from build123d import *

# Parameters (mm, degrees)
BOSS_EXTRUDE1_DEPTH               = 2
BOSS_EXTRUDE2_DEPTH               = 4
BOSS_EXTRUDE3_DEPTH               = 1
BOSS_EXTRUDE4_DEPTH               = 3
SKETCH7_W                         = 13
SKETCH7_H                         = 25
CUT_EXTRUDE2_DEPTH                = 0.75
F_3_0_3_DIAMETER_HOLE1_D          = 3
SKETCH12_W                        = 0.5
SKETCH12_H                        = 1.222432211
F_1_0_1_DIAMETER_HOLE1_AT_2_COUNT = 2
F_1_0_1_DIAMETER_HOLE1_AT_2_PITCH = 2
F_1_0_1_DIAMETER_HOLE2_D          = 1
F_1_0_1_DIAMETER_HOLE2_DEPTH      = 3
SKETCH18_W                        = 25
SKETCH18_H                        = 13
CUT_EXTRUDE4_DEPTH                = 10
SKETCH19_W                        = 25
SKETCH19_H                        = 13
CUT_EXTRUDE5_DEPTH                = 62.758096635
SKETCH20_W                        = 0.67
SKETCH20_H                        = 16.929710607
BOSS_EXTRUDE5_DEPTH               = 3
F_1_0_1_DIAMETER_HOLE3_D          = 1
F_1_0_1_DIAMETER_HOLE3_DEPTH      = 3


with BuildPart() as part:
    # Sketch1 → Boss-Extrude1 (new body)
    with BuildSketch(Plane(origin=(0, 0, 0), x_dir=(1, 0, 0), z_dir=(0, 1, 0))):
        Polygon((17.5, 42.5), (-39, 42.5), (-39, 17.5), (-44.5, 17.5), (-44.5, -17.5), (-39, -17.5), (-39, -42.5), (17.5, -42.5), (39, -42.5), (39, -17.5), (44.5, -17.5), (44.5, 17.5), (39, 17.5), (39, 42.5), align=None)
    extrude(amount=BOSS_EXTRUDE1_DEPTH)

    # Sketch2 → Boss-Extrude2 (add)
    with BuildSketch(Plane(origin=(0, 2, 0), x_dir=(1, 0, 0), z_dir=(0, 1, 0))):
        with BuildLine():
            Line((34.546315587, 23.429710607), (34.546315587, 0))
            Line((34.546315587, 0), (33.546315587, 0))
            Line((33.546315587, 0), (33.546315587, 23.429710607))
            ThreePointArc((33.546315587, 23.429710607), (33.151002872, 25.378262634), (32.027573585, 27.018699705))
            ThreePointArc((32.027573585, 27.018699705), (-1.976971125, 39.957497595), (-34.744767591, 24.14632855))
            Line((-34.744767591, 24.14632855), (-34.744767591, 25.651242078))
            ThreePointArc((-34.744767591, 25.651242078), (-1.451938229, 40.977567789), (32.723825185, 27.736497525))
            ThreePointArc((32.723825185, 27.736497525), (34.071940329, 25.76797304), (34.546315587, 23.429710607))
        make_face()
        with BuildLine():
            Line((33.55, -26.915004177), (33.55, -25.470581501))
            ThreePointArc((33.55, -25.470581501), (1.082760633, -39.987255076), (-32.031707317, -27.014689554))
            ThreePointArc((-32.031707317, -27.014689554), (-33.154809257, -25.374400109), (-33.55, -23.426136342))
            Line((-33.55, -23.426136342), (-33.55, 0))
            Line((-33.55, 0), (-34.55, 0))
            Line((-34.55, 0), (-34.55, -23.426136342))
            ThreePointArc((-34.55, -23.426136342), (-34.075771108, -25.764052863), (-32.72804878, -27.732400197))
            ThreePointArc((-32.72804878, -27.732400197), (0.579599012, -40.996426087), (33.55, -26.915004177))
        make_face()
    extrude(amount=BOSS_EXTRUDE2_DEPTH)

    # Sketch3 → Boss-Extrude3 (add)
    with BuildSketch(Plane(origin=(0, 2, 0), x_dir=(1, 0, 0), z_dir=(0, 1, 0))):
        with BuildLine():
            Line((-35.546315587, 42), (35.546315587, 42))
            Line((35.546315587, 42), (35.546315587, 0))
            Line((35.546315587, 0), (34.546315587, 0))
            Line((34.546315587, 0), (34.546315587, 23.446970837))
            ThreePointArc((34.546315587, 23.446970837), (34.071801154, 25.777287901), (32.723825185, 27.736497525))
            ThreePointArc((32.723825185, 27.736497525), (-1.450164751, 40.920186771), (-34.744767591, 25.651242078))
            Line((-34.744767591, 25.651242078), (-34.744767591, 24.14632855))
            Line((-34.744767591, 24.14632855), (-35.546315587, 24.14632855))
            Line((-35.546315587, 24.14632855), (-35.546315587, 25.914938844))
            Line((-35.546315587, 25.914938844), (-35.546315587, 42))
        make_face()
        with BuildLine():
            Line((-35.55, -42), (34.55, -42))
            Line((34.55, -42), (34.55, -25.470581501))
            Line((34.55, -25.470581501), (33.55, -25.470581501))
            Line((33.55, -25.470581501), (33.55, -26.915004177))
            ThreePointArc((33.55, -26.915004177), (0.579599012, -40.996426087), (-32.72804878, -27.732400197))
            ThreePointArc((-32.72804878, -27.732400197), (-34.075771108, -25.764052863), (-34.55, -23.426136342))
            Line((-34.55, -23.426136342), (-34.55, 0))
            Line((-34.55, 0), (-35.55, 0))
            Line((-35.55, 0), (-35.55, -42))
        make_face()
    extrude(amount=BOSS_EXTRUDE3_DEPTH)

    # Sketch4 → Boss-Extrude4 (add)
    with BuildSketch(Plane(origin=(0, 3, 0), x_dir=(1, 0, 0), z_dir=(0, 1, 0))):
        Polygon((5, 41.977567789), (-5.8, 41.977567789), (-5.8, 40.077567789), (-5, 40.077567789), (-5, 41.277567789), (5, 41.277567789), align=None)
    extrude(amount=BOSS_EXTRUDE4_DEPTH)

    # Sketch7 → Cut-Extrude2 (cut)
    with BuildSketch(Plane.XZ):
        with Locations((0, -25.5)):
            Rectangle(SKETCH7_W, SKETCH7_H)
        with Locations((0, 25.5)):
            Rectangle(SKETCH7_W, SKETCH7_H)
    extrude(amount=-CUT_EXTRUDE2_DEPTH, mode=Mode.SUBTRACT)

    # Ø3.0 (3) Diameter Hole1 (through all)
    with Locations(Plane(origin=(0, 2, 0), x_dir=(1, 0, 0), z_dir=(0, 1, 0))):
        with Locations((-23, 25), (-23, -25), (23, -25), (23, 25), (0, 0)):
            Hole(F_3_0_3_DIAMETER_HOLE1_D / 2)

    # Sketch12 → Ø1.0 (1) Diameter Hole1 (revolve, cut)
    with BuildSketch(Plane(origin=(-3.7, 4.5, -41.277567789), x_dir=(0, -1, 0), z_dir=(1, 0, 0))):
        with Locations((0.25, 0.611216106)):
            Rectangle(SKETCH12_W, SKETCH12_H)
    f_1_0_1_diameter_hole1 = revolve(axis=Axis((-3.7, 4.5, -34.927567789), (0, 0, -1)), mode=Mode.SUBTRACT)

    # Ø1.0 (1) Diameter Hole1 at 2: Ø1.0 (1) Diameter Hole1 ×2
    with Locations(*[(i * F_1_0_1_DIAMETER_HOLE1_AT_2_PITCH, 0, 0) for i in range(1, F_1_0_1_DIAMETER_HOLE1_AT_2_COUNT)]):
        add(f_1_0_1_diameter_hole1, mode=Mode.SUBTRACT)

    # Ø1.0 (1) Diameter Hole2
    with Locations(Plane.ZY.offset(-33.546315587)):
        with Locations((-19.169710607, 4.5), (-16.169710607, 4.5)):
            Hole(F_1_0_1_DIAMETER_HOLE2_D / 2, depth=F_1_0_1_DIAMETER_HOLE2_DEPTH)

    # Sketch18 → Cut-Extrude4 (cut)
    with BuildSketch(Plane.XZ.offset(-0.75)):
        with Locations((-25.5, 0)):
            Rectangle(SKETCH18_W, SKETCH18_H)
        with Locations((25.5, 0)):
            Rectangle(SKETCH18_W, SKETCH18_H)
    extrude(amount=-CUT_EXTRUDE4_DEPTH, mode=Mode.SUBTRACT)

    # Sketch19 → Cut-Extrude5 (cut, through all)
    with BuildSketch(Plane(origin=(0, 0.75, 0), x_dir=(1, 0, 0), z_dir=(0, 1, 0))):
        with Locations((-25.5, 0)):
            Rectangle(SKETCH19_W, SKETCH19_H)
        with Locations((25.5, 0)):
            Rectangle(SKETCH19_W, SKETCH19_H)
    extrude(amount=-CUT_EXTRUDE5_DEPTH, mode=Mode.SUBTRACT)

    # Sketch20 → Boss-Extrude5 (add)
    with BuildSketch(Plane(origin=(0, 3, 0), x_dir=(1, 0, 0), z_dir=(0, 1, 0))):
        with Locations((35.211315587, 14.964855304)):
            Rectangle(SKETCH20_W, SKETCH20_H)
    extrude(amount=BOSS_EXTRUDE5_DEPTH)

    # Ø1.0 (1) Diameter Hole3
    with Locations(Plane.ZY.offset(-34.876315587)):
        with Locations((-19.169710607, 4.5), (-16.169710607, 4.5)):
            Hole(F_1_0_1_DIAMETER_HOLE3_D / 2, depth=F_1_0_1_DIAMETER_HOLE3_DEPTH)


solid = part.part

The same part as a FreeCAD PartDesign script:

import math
import FreeCAD as App
import Part
import Sketcher
from FreeCAD import Vector
Q = App.Units.Quantity

doc = App.newDocument("Part")
params = doc.addObject("Spreadsheet::Sheet", "Params")
for row, (alias, value) in enumerate([
    ("sketch1_width", "78 mm"),
    ("sketch1_height", "25 mm"),
    ("sketch1_height2", "35 mm"),
    ("sketch1_width2", "5.5 mm"),
    ("pad1_length", "2 mm"),
    ("sketch2_radius", "6 mm"),
    ("sketch2_radius2", "47 mm"),
    ("sketch2_radius3", "46 mm"),
    ("pad2_length", "4 mm"),
    ("sketch3_radius", "47 mm"),
    ("sketch3_radius2", "6 mm"),
    ("sketch3_width", "1 mm"),
    ("sketch3_height", "42 mm"),
    ("sketch3_width2", "70.1 mm"),
    ("pad3_length", "1 mm"),
    ("sketch4_width", "10 mm"),
    ("sketch4_width2", "10.8 mm"),
    ("sketch4_height", "1.9 mm"),
    ("sketch4_height2", "1.2 mm"),
    ("pad4_length", "3 mm"),
    ("sketch5_width", "13 mm"),
    ("sketch5_height", "25 mm"),
    ("pocket1_length", "0.75 mm"),
    ("sketch6_diameter", "3 mm"),
    ("hole_diameter", "3 mm"),
    ("sketch7_width", "0.5 mm"),
    ("groove_angle", "360 deg"),
    ("linearpattern_pitch", "2 mm"),
    ("sketch8_diameter", "1 mm"),
    ("hole2_diameter", "1 mm"),
    ("hole2_depth", "3 mm"),
    ("sketch9_width", "25 mm"),
    ("sketch9_height", "13 mm"),
    ("pocket2_length", "10 mm"),
    ("sketch10_width", "25 mm"),
    ("sketch10_height", "13 mm"),
    ("sketch11_width", "0.67 mm"),
    ("pad5_length", "3 mm"),
    ("sketch12_diameter", "1 mm"),
    ("hole3_diameter", "1 mm"),
    ("hole3_depth", "3 mm"),
], start=1):
    params.set(f"A{row}", alias)
    params.set(f"B{row}", "=" + value)
    params.setAlias(f"B{row}", alias)

body = doc.addObject("PartDesign::Body", "Body")

sketch1 = doc.addObject("Sketcher::SketchObject", "Sketch")
body.addObject(sketch1)
sketch1.AttachmentSupport = (doc.XZ_Plane, [""])
sketch1.MapMode = "FlatFace"
sketch1.addGeometry(Part.LineSegment(Vector(-39, -42, 0), Vector(-39, -18, 0)), False)
sketch1.addGeometry(Part.LineSegment(Vector(-39, -18, 0), Vector(-44, -18, 0)), False)
sketch1.addGeometry(Part.LineSegment(Vector(-44, -18, 0), Vector(-44, 18, 0)), False)
sketch1.addGeometry(Part.LineSegment(Vector(-44, 18, 0), Vector(-39, 18, 0)), False)
sketch1.addGeometry(Part.LineSegment(Vector(-39, 18, 0), Vector(-39, 42, 0)), False)
sketch1.addGeometry(Part.LineSegment(Vector(-39, 42, 0), Vector(39, 42, 0)), False)
sketch1.addGeometry(Part.LineSegment(Vector(39, 42, 0), Vector(39, 18, 0)), False)
sketch1.addGeometry(Part.LineSegment(Vector(39, 18, 0), Vector(44, 18, 0)), False)
sketch1.addGeometry(Part.LineSegment(Vector(44, 18, 0), Vector(44, -18, 0)), False)
sketch1.addGeometry(Part.LineSegment(Vector(44, -18, 0), Vector(39, -18, 0)), False)
sketch1.addGeometry(Part.LineSegment(Vector(39, -18, 0), Vector(39, -42, 0)), False)
sketch1.addGeometry(Part.LineSegment(Vector(39, -42, 0), Vector(-39, -42, 0)), False)
sketch1.addConstraint(Sketcher.Constraint("Coincident", 0, 2, 1, 1))
sketch1.addConstraint(Sketcher.Constraint("Coincident", 1, 2, 2, 1))
sketch1.addConstraint(Sketcher.Constraint("Coincident", 2, 2, 3, 1))
sketch1.addConstraint(Sketcher.Constraint("Coincident", 3, 2, 4, 1))
sketch1.addConstraint(Sketcher.Constraint("Coincident", 4, 2, 5, 1))
sketch1.addConstraint(Sketcher.Constraint("Coincident", 5, 2, 6, 1))
sketch1.addConstraint(Sketcher.Constraint("Coincident", 6, 2, 7, 1))
sketch1.addConstraint(Sketcher.Constraint("Coincident", 7, 2, 8, 1))
sketch1.addConstraint(Sketcher.Constraint("Coincident", 8, 2, 9, 1))
sketch1.addConstraint(Sketcher.Constraint("Coincident", 9, 2, 10, 1))
sketch1.addConstraint(Sketcher.Constraint("Coincident", 10, 2, 11, 1))
sketch1.addConstraint(Sketcher.Constraint("Coincident", 11, 2, 0, 1))
sketch1.addConstraint(Sketcher.Constraint("Vertical", 0))
sketch1.addConstraint(Sketcher.Constraint("Horizontal", 1))
sketch1.addConstraint(Sketcher.Constraint("Vertical", 2))
sketch1.addConstraint(Sketcher.Constraint("Horizontal", 3))
sketch1.addConstraint(Sketcher.Constraint("Vertical", 4))
sketch1.addConstraint(Sketcher.Constraint("Horizontal", 5))
sketch1.addConstraint(Sketcher.Constraint("Vertical", 6))
sketch1.addConstraint(Sketcher.Constraint("Horizontal", 7))
sketch1.addConstraint(Sketcher.Constraint("Vertical", 8))
sketch1.addConstraint(Sketcher.Constraint("Horizontal", 9))
sketch1.addConstraint(Sketcher.Constraint("Vertical", 10))
sketch1.addConstraint(Sketcher.Constraint("Horizontal", 11))
sketch1.addConstraint(Sketcher.Constraint("Symmetric", 0, 2, 6, 2, -1, 1))
sketch1.addConstraint(Sketcher.Constraint("Symmetric", 2, 2, 8, 2, -1, 1))
sketch1.addConstraint(Sketcher.Constraint("Symmetric", 4, 2, 10, 2, -1, 1))
sketch1.addConstraint(Sketcher.Constraint("Symmetric", 3, 2, 6, 2, -2))
sketch1.addConstraint(Sketcher.Constraint("DistanceX", 5, 1, 5, 2, Q("78 mm")))
sketch1.addConstraint(Sketcher.Constraint("DistanceY", 0, 1, 0, 2, Q("25 mm")))
sketch1.addConstraint(Sketcher.Constraint("DistanceY", 2, 1, 2, 2, Q("35 mm")))
sketch1.addConstraint(Sketcher.Constraint("DistanceX", 1, 2, 1, 1, Q("5.5 mm")))
sketch1.setExpression("Constraints[28]", "Params.sketch1_width")
sketch1.setExpression("Constraints[29]", "Params.sketch1_height")
sketch1.setExpression("Constraints[30]", "Params.sketch1_height2")
sketch1.setExpression("Constraints[31]", "Params.sketch1_width2")
pad1 = doc.addObject("PartDesign::Pad", "Pad")
body.addObject(pad1)
pad1.Profile = sketch1
pad1.setExpression("Length", "Params.pad1_length")
pad1.Reversed = True

sketch2 = doc.addObject("Sketcher::SketchObject", "Sketch001")
body.addObject(sketch2)
sketch2.AttachmentSupport = (doc.XZ_Plane, [""])
sketch2.MapMode = "FlatFace"
sketch2.AttachmentOffset = App.Placement(Vector(0, 0, -2), App.Rotation())
sketch2.addGeometry(Part.LineSegment(Vector(34.5, 0, 0), Vector(34.5, -23.4, 0)), False)
sketch2.addGeometry(Part.ArcOfCircle(Part.Circle(Vector(28.5, -23.4, 0), Vector(0, 0, 1), 6), math.radians(-46), math.radians(0)), False)
sketch2.addGeometry(Part.ArcOfCircle(Part.Circle(Vector(0, 6, 0), Vector(0, 0, 1), 47), math.radians(-138), math.radians(-46)), False)
sketch2.addGeometry(Part.LineSegment(Vector(-34.7, -25.7, 0), Vector(-34.7, -24.1, 0)), False)
sketch2.addGeometry(Part.ArcOfCircle(Part.Circle(Vector(0, 6, 0), Vector(0, 0, 1), 46), math.radians(-139), math.radians(-46)), False)
sketch2.addGeometry(Part.ArcOfCircle(Part.Circle(Vector(28.5, -23.4, 0), Vector(0, 0, 1), 5), math.radians(-46), math.radians(0)), False)
sketch2.addGeometry(Part.LineSegment(Vector(33.5, -23.4, 0), Vector(33.5, 0, 0)), False)
sketch2.addGeometry(Part.LineSegment(Vector(33.5, 0, 0), Vector(34.5, 0, 0)), False)
sketch2.addGeometry(Part.LineSegment(Vector(33.5, 26.9, 0), Vector(33.5, 25.5, 0)), False)
sketch2.addGeometry(Part.ArcOfCircle(Part.Circle(Vector(0, -6, 0), Vector(0, 0, 1), 46), math.radians(43), math.radians(134)), False)
sketch2.addGeometry(Part.ArcOfCircle(Part.Circle(Vector(-28.6, 23.4, 0), Vector(0, 0, 1), 5), math.radians(134), math.radians(180)), False)
sketch2.addGeometry(Part.LineSegment(Vector(-33.5, 23.4, 0), Vector(-33.5, 0, 0)), False)
sketch2.addGeometry(Part.LineSegment(Vector(-33.5, 0, 0), Vector(-34.5, 0, 0)), False)
sketch2.addGeometry(Part.LineSegment(Vector(-34.5, 0, 0), Vector(-34.5, 23.4, 0)), False)
sketch2.addGeometry(Part.ArcOfCircle(Part.Circle(Vector(-28.5, 23.4, 0), Vector(0, 0, 1), 6), math.radians(134), math.radians(180)), False)
sketch2.addGeometry(Part.ArcOfCircle(Part.Circle(Vector(0, -6, 0), Vector(0, 0, 1), 47), math.radians(44), math.radians(134)), False)
sketch2.addConstraint(Sketcher.Constraint("Tangent", 0, 2, 1, 2))
sketch2.addConstraint(Sketcher.Constraint("Tangent", 1, 1, 2, 2))
sketch2.addConstraint(Sketcher.Constraint("Coincident", 2, 1, 3, 1))
sketch2.addConstraint(Sketcher.Constraint("Coincident", 3, 2, 4, 1))
sketch2.addConstraint(Sketcher.Constraint("Tangent", 4, 2, 5, 1))
sketch2.addConstraint(Sketcher.Constraint("Tangent", 5, 2, 6, 1))
sketch2.addConstraint(Sketcher.Constraint("Coincident", 6, 2, 7, 1))
sketch2.addConstraint(Sketcher.Constraint("Coincident", 7, 2, 0, 1))
sketch2.addConstraint(Sketcher.Constraint("Coincident", 8, 2, 9, 1))
sketch2.addConstraint(Sketcher.Constraint("Tangent", 9, 2, 10, 1))
sketch2.addConstraint(Sketcher.Constraint("Tangent", 10, 2, 11, 1))
sketch2.addConstraint(Sketcher.Constraint("Coincident", 11, 2, 12, 1))
sketch2.addConstraint(Sketcher.Constraint("Coincident", 12, 2, 13, 1))
sketch2.addConstraint(Sketcher.Constraint("Tangent", 13, 2, 14, 2))
sketch2.addConstraint(Sketcher.Constraint("Tangent", 14, 1, 15, 2))
sketch2.addConstraint(Sketcher.Constraint("Coincident", 15, 1, 8, 1))
sketch2.addConstraint(Sketcher.Constraint("Vertical", 0))
sketch2.addConstraint(Sketcher.Constraint("Vertical", 3))
sketch2.addConstraint(Sketcher.Constraint("Vertical", 6))
sketch2.addConstraint(Sketcher.Constraint("Horizontal", 7))
sketch2.addConstraint(Sketcher.Constraint("Vertical", 8))
sketch2.addConstraint(Sketcher.Constraint("Vertical", 11))
sketch2.addConstraint(Sketcher.Constraint("Horizontal", 12))
sketch2.addConstraint(Sketcher.Constraint("Vertical", 13))
sketch2.addConstraint(Sketcher.Constraint("Coincident", 4, 3, 2, 3))
sketch2.addConstraint(Sketcher.Constraint("Coincident", 5, 3, 1, 3))
sketch2.addConstraint(Sketcher.Constraint("Coincident", 14, 3, 10, 3))
sketch2.addConstraint(Sketcher.Constraint("Coincident", 15, 3, 9, 3))
sketch2.addConstraint(Sketcher.Constraint("Equal", 4, 9))
sketch2.addConstraint(Sketcher.Constraint("Equal", 5, 10))
sketch2.addConstraint(Sketcher.Constraint("Equal", 1, 14))
sketch2.addConstraint(Sketcher.Constraint("Symmetric", 2, 3, 9, 3, -1, 1))
sketch2.addConstraint(Sketcher.Constraint("PointOnObject", 2, 3, -2))
sketch2.addConstraint(Sketcher.Constraint("PointOnObject", 6, 2, -1))
sketch2.addConstraint(Sketcher.Constraint("PointOnObject", 11, 2, -1))
sketch2.addConstraint(Sketcher.Constraint("Radius", 1, Q("6 mm")))
sketch2.addConstraint(Sketcher.Constraint("Radius", 2, Q("47 mm")))
sketch2.addConstraint(Sketcher.Constraint("Radius", 4, Q("46 mm")))
sketch2.addConstraint(Sketcher.Constraint("DistanceY", -1, 1, 2, 3, Q("6 mm")))
sketch2.addConstraint(Sketcher.Constraint("DistanceX", 10, 3, -1, 1, Q("28.55 mm")))
sketch2.addConstraint(Sketcher.Constraint("DistanceX", -1, 1, 8, 2, Q("33.55 mm")))
sketch2.addConstraint(Sketcher.Constraint("DistanceY", 0, 2, 0, 1, Q("23.429711 mm")))
sketch2.addConstraint(Sketcher.Constraint("DistanceY", 3, 1, 3, 2, Q("1.504914 mm")))
sketch2.setExpression("Constraints[35]", "Params.sketch2_radius")
sketch2.setExpression("Constraints[36]", "Params.sketch2_radius2")
sketch2.setExpression("Constraints[37]", "Params.sketch2_radius3")
pad2 = doc.addObject("PartDesign::Pad", "Pad001")
body.addObject(pad2)
pad2.Profile = sketch2
pad2.setExpression("Length", "Params.pad2_length")
pad2.Reversed = True

sketch3 = doc.addObject("Sketcher::SketchObject", "Sketch002")
body.addObject(sketch3)
sketch3.AttachmentSupport = (doc.XZ_Plane, [""])
sketch3.MapMode = "FlatFace"
sketch3.AttachmentOffset = App.Placement(Vector(0, 0, -2), App.Rotation())
sketch3.addGeometry(Part.LineSegment(Vector(35.5, -42, 0), Vector(-35.5, -42, 0)), False)
sketch3.addGeometry(Part.LineSegment(Vector(-35.5, -42, 0), Vector(-35.5, -24.1, 0)), False)
sketch3.addGeometry(Part.LineSegment(Vector(-35.5, -24.1, 0), Vector(-34.7, -24.1, 0)), False)
sketch3.addGeometry(Part.LineSegment(Vector(-34.7, -24.1, 0), Vector(-34.7, -25.7, 0)), False)
sketch3.addGeometry(Part.ArcOfCircle(Part.Circle(Vector(0, 6.2, 0), Vector(0, 0, 1), 47.1), math.radians(-138), math.radians(-46)), False)
sketch3.addGeometry(Part.ArcOfCircle(Part.Circle(Vector(28.6, -23.4, 0), Vector(0, 0, 1), 6), math.radians(-46), math.radians(0)), False)
sketch3.addGeometry(Part.LineSegment(Vector(34.5, -23.4, 0), Vector(34.5, 0, 0)), False)
sketch3.addGeometry(Part.LineSegment(Vector(34.5, 0, 0), Vector(35.5, 0, 0)), False)
sketch3.addGeometry(Part.LineSegment(Vector(35.5, 0, 0), Vector(35.5, -42, 0)), False)
sketch3.addGeometry(Part.LineSegment(Vector(-35.5, 42, 0), Vector(34.5, 42, 0)), False)
sketch3.addGeometry(Part.LineSegment(Vector(34.5, 42, 0), Vector(34.5, 25.5, 0)), False)
sketch3.addGeometry(Part.LineSegment(Vector(34.5, 25.5, 0), Vector(33.5, 25.5, 0)), False)
sketch3.addGeometry(Part.LineSegment(Vector(33.5, 25.5, 0), Vector(33.5, 26.9, 0)), False)
sketch3.addGeometry(Part.ArcOfCircle(Part.Circle(Vector(0, -6, 0), Vector(0, 0, 1), 47), math.radians(44), math.radians(134)), False)
sketch3.addGeometry(Part.ArcOfCircle(Part.Circle(Vector(-28.5, 23.4, 0), Vector(0, 0, 1), 6), math.radians(134), math.radians(180)), False)
sketch3.addGeometry(Part.LineSegment(Vector(-34.5, 23.4, 0), Vector(-34.5, 0, 0)), False)
sketch3.addGeometry(Part.LineSegment(Vector(-34.5, 0, 0), Vector(-35.5, 0, 0)), False)
sketch3.addGeometry(Part.LineSegment(Vector(-35.5, 0, 0), Vector(-35.5, 42, 0)), False)
sketch3.addConstraint(Sketcher.Constraint("Coincident", 0, 2, 1, 1))
sketch3.addConstraint(Sketcher.Constraint("Coincident", 1, 2, 2, 1))
sketch3.addConstraint(Sketcher.Constraint("Coincident", 2, 2, 3, 1))
sketch3.addConstraint(Sketcher.Constraint("Coincident", 3, 2, 4, 1))
sketch3.addConstraint(Sketcher.Constraint("Tangent", 4, 2, 5, 1))
sketch3.addConstraint(Sketcher.Constraint("Tangent", 5, 2, 6, 1))
sketch3.addConstraint(Sketcher.Constraint("Coincident", 6, 2, 7, 1))
sketch3.addConstraint(Sketcher.Constraint("Coincident", 7, 2, 8, 1))
sketch3.addConstraint(Sketcher.Constraint("Coincident", 8, 2, 0, 1))
sketch3.addConstraint(Sketcher.Constraint("Coincident", 9, 2, 10, 1))
sketch3.addConstraint(Sketcher.Constraint("Coincident", 10, 2, 11, 1))
sketch3.addConstraint(Sketcher.Constraint("Coincident", 11, 2, 12, 1))
sketch3.addConstraint(Sketcher.Constraint("Coincident", 12, 2, 13, 1))
sketch3.addConstraint(Sketcher.Constraint("Tangent", 13, 2, 14, 1))
sketch3.addConstraint(Sketcher.Constraint("Tangent", 14, 2, 15, 1))
sketch3.addConstraint(Sketcher.Constraint("Coincident", 15, 2, 16, 1))
sketch3.addConstraint(Sketcher.Constraint("Coincident", 16, 2, 17, 1))
sketch3.addConstraint(Sketcher.Constraint("Coincident", 17, 2, 9, 1))
sketch3.addConstraint(Sketcher.Constraint("Horizontal", 0))
sketch3.addConstraint(Sketcher.Constraint("Vertical", 1))
sketch3.addConstraint(Sketcher.Constraint("Horizontal", 2))
sketch3.addConstraint(Sketcher.Constraint("Vertical", 3))
sketch3.addConstraint(Sketcher.Constraint("Vertical", 6))
sketch3.addConstraint(Sketcher.Constraint("Horizontal", 7))
sketch3.addConstraint(Sketcher.Constraint("Vertical", 8))
sketch3.addConstraint(Sketcher.Constraint("Horizontal", 9))
sketch3.addConstraint(Sketcher.Constraint("Vertical", 10))
sketch3.addConstraint(Sketcher.Constraint("Horizontal", 11))
sketch3.addConstraint(Sketcher.Constraint("Vertical", 12))
sketch3.addConstraint(Sketcher.Constraint("Vertical", 15))
sketch3.addConstraint(Sketcher.Constraint("Horizontal", 16))
sketch3.addConstraint(Sketcher.Constraint("Vertical", 17))
sketch3.addConstraint(Sketcher.Constraint("PointOnObject", 13, 3, -2))
sketch3.addConstraint(Sketcher.Constraint("PointOnObject", 6, 2, -1))
sketch3.addConstraint(Sketcher.Constraint("PointOnObject", 15, 2, -1))
sketch3.addConstraint(Sketcher.Constraint("Equal", 7, 11))
sketch3.addConstraint(Sketcher.Constraint("Equal", 11, 16))
sketch3.addConstraint(Sketcher.Constraint("Equal", 8, 17))
sketch3.addConstraint(Sketcher.Constraint("Radius", 13, Q("47 mm")))
sketch3.addConstraint(Sketcher.Constraint("Radius", 14, Q("6 mm")))
sketch3.addConstraint(Sketcher.Constraint("DistanceX", 7, 1, 7, 2, Q("1 mm")))
sketch3.addConstraint(Sketcher.Constraint("DistanceY", 8, 2, 8, 1, Q("42 mm")))
sketch3.addConstraint(Sketcher.Constraint("DistanceX", 9, 1, 9, 2, Q("70.1 mm")))
sketch3.addConstraint(Sketcher.Constraint("DistanceY", 13, 3, -1, 1, Q("6 mm")))
sketch3.addConstraint(Sketcher.Constraint("DistanceX", 14, 3, -1, 1, Q("28.55 mm")))
sketch3.addConstraint(Sketcher.Constraint("Radius", 4, Q("47.132048 mm")))
sketch3.addConstraint(Sketcher.Constraint("Radius", 5, Q("5.959294 mm")))
sketch3.addConstraint(Sketcher.Constraint("DistanceX", 0, 2, 0, 1, Q("71.092631 mm")))
sketch3.addConstraint(Sketcher.Constraint("DistanceY", 1, 1, 1, 2, Q("17.853671 mm")))
sketch3.addConstraint(Sketcher.Constraint("DistanceY", 6, 1, 6, 2, Q("23.446971 mm")))
sketch3.addConstraint(Sketcher.Constraint("DistanceY", 10, 2, 10, 1, Q("16.529418 mm")))
sketch3.addConstraint(Sketcher.Constraint("DistanceX", 13, 2, 4, 3, Q("32.733902 mm")))
sketch3.addConstraint(Sketcher.Constraint("DistanceX", 2, 1, 2, 2, Q("0.801548 mm")))
sketch3.addConstraint(Sketcher.Constraint("DistanceY", 3, 2, 3, 1, Q("1.504914 mm")))
sketch3.setExpression("Constraints[38]", "Params.sketch3_radius")
sketch3.setExpression("Constraints[39]", "Params.sketch3_radius2")
sketch3.setExpression("Constraints[40]", "Params.sketch3_width")
sketch3.setExpression("Constraints[41]", "Params.sketch3_height")
sketch3.setExpression("Constraints[42]", "Params.sketch3_width2")
pad3 = doc.addObject("PartDesign::Pad", "Pad002")
body.addObject(pad3)
pad3.Profile = sketch3
pad3.setExpression("Length", "Params.pad3_length")
pad3.Reversed = True

sketch4 = doc.addObject("Sketcher::SketchObject", "Sketch003")
body.addObject(sketch4)
sketch4.AttachmentSupport = (doc.XZ_Plane, [""])
sketch4.MapMode = "FlatFace"
sketch4.AttachmentOffset = App.Placement(Vector(0, 0, -3), App.Rotation())
sketch4.addGeometry(Part.LineSegment(Vector(5, -42, 0), Vector(-5.8, -42, 0)), False)
sketch4.addGeometry(Part.LineSegment(Vector(-5.8, -42, 0), Vector(-5.8, -40.1, 0)), False)
sketch4.addGeometry(Part.LineSegment(Vector(-5.8, -40.1, 0), Vector(-5, -40.1, 0)), False)
sketch4.addGeometry(Part.LineSegment(Vector(-5, -40.1, 0), Vector(-5, -41.3, 0)), False)
sketch4.addGeometry(Part.LineSegment(Vector(-5, -41.3, 0), Vector(5, -41.3, 0)), False)
sketch4.addGeometry(Part.LineSegment(Vector(5, -41.3, 0), Vector(5, -42, 0)), False)
sketch4.addConstraint(Sketcher.Constraint("Coincident", 0, 2, 1, 1))
sketch4.addConstraint(Sketcher.Constraint("Coincident", 1, 2, 2, 1))
sketch4.addConstraint(Sketcher.Constraint("Coincident", 2, 2, 3, 1))
sketch4.addConstraint(Sketcher.Constraint("Coincident", 3, 2, 4, 1))
sketch4.addConstraint(Sketcher.Constraint("Coincident", 4, 2, 5, 1))
sketch4.addConstraint(Sketcher.Constraint("Coincident", 5, 2, 0, 1))
sketch4.addConstraint(Sketcher.Constraint("Horizontal", 0))
sketch4.addConstraint(Sketcher.Constraint("Vertical", 1))
sketch4.addConstraint(Sketcher.Constraint("Horizontal", 2))
sketch4.addConstraint(Sketcher.Constraint("Vertical", 3))
sketch4.addConstraint(Sketcher.Constraint("Horizontal", 4))
sketch4.addConstraint(Sketcher.Constraint("Vertical", 5))
sketch4.addConstraint(Sketcher.Constraint("DistanceX", 4, 1, 4, 2, Q("10 mm")))
sketch4.addConstraint(Sketcher.Constraint("DistanceX", 0, 2, 0, 1, Q("10.8 mm")))
sketch4.addConstraint(Sketcher.Constraint("DistanceY", 1, 1, 1, 2, Q("1.9 mm")))
sketch4.addConstraint(Sketcher.Constraint("DistanceY", 3, 2, 3, 1, Q("1.2 mm")))
sketch4.addConstraint(Sketcher.Constraint("DistanceX", 2, 2, -1, 1, Q("5 mm")))
sketch4.addConstraint(Sketcher.Constraint("DistanceY", 0, 2, -1, 1, Q("41.977568 mm")))
sketch4.setExpression("Constraints[12]", "Params.sketch4_width")
sketch4.setExpression("Constraints[13]", "Params.sketch4_width2")
sketch4.setExpression("Constraints[14]", "Params.sketch4_height")
sketch4.setExpression("Constraints[15]", "Params.sketch4_height2")
pad4 = doc.addObject("PartDesign::Pad", "Pad003")
body.addObject(pad4)
pad4.Profile = sketch4
pad4.setExpression("Length", "Params.pad4_length")
pad4.Reversed = True

sketch5 = doc.addObject("Sketcher::SketchObject", "Sketch004")
body.addObject(sketch5)
sketch5.AttachmentSupport = (doc.XZ_Plane, [""])
sketch5.MapMode = "FlatFace"
sketch5.addGeometry(Part.LineSegment(Vector(-6, -13, 0), Vector(-6, -38, 0)), False)
sketch5.addGeometry(Part.LineSegment(Vector(-6, -38, 0), Vector(6, -38, 0)), False)
sketch5.addGeometry(Part.LineSegment(Vector(6, -38, 0), Vector(6, -13, 0)), False)
sketch5.addGeometry(Part.LineSegment(Vector(6, -13, 0), Vector(-6, -13, 0)), False)
sketch5.addGeometry(Part.LineSegment(Vector(-6, 38, 0), Vector(-6, 13, 0)), False)
sketch5.addGeometry(Part.LineSegment(Vector(-6, 13, 0), Vector(6, 13, 0)), False)
sketch5.addGeometry(Part.LineSegment(Vector(6, 13, 0), Vector(6, 38, 0)), False)
sketch5.addGeometry(Part.LineSegment(Vector(6, 38, 0), Vector(-6, 38, 0)), False)
sketch5.addConstraint(Sketcher.Constraint("Coincident", 0, 2, 1, 1))
sketch5.addConstraint(Sketcher.Constraint("Coincident", 1, 2, 2, 1))
sketch5.addConstraint(Sketcher.Constraint("Coincident", 2, 2, 3, 1))
sketch5.addConstraint(Sketcher.Constraint("Coincident", 3, 2, 0, 1))
sketch5.addConstraint(Sketcher.Constraint("Coincident", 4, 2, 5, 1))
sketch5.addConstraint(Sketcher.Constraint("Coincident", 5, 2, 6, 1))
sketch5.addConstraint(Sketcher.Constraint("Coincident", 6, 2, 7, 1))
sketch5.addConstraint(Sketcher.Constraint("Coincident", 7, 2, 4, 1))
sketch5.addConstraint(Sketcher.Constraint("Vertical", 0))
sketch5.addConstraint(Sketcher.Constraint("Horizontal", 1))
sketch5.addConstraint(Sketcher.Constraint("Vertical", 2))
sketch5.addConstraint(Sketcher.Constraint("Horizontal", 3))
sketch5.addConstraint(Sketcher.Constraint("Vertical", 4))
sketch5.addConstraint(Sketcher.Constraint("Horizontal", 5))
sketch5.addConstraint(Sketcher.Constraint("Vertical", 6))
sketch5.addConstraint(Sketcher.Constraint("Horizontal", 7))
sketch5.addConstraint(Sketcher.Constraint("Symmetric", 2, 2, 4, 2, -1, 1))
sketch5.addConstraint(Sketcher.Constraint("Symmetric", 0, 2, 6, 2, -1, 1))
sketch5.addConstraint(Sketcher.Constraint("Vertical", 3, 2, 4, 2))
sketch5.addConstraint(Sketcher.Constraint("DistanceX", 1, 1, 1, 2, Q("13 mm")))
sketch5.addConstraint(Sketcher.Constraint("DistanceY", 0, 2, 0, 1, Q("25 mm")))
sketch5.addConstraint(Sketcher.Constraint("DistanceY", 0, 2, -1, 1, Q("38 mm")))
sketch5.setExpression("Constraints[19]", "Params.sketch5_width")
sketch5.setExpression("Constraints[20]", "Params.sketch5_height")
pocket1 = doc.addObject("PartDesign::Pocket", "Pocket")
body.addObject(pocket1)
pocket1.Profile = sketch5
pocket1.setExpression("Length", "Params.pocket1_length")

sketch6 = doc.addObject("Sketcher::SketchObject", "Sketch005")
body.addObject(sketch6)
sketch6.AttachmentSupport = (doc.XZ_Plane, [""])
sketch6.MapMode = "FlatFace"
sketch6.AttachmentOffset = App.Placement(Vector(0, 0, -2), App.Rotation())
sketch6.addGeometry(Part.Circle(Vector(-23, -25, 0), Vector(0, 0, 1), 1.5), False)
sketch6.addGeometry(Part.Circle(Vector(-23, 25, 0), Vector(0, 0, 1), 1.5), False)
sketch6.addGeometry(Part.Circle(Vector(23, 25, 0), Vector(0, 0, 1), 1.5), False)
sketch6.addGeometry(Part.Circle(Vector(23, -25, 0), Vector(0, 0, 1), 1.5), False)
sketch6.addGeometry(Part.Circle(Vector(0, 0, 0), Vector(0, 0, 1), 1.5), False)
sketch6.addConstraint(Sketcher.Constraint("Coincident", 4, 3, -1, 1))
sketch6.addConstraint(Sketcher.Constraint("Equal", 0, 1))
sketch6.addConstraint(Sketcher.Constraint("Equal", 1, 2))
sketch6.addConstraint(Sketcher.Constraint("Equal", 2, 3))
sketch6.addConstraint(Sketcher.Constraint("Equal", 3, 4))
sketch6.addConstraint(Sketcher.Constraint("Symmetric", 0, 3, 2, 3, -1, 1))
sketch6.addConstraint(Sketcher.Constraint("Symmetric", 1, 3, 3, 3, -1, 1))
sketch6.addConstraint(Sketcher.Constraint("Symmetric", 1, 3, 2, 3, -2))
sketch6.addConstraint(Sketcher.Constraint("Diameter", 0, Q("3 mm")))
sketch6.addConstraint(Sketcher.Constraint("DistanceX", 0, 3, -1, 1, Q("23 mm")))
sketch6.addConstraint(Sketcher.Constraint("DistanceY", 0, 3, -1, 1, Q("25 mm")))
sketch6.setExpression("Constraints[8]", "Params.sketch6_diameter")
doc.recompute()
hole = doc.addObject("PartDesign::Hole", "Hole")
body.addObject(hole)
hole.Profile = sketch6
hole.ThreadType = "None"
hole.setExpression("Diameter", "Params.hole_diameter")
hole.DepthType = "ThroughAll"
hole.Reversed = True

sketch7 = doc.addObject("Sketcher::SketchObject", "Sketch006")
body.addObject(sketch7)
sketch7.AttachmentSupport = (doc.YZ_Plane, [""])
sketch7.MapMode = "FlatFace"
sketch7.AttachmentOffset = App.Placement(Vector(0, 0, -3.7), App.Rotation())
sketch7.addGeometry(Part.LineSegment(Vector(4.5, -42.5, 0), Vector(4.5, -41.3, 0)), False)
sketch7.addGeometry(Part.LineSegment(Vector(4.5, -41.3, 0), Vector(4, -41.3, 0)), False)
sketch7.addGeometry(Part.LineSegment(Vector(4, -41.3, 0), Vector(4, -42.5, 0)), False)
sketch7.addGeometry(Part.LineSegment(Vector(4, -42.5, 0), Vector(4.5, -42.5, 0)), False)
sketch7.addGeometry(Part.LineSegment(Vector(4.5, -41.3, 0), Vector(4.5, -42.5, 0)), True)
sketch7.addConstraint(Sketcher.Constraint("Coincident", 0, 2, 1, 1))
sketch7.addConstraint(Sketcher.Constraint("Coincident", 1, 2, 2, 1))
sketch7.addConstraint(Sketcher.Constraint("Coincident", 2, 2, 3, 1))
sketch7.addConstraint(Sketcher.Constraint("Coincident", 3, 2, 0, 1))
sketch7.addConstraint(Sketcher.Constraint("Vertical", 0))
sketch7.addConstraint(Sketcher.Constraint("Horizontal", 1))
sketch7.addConstraint(Sketcher.Constraint("Vertical", 2))
sketch7.addConstraint(Sketcher.Constraint("Horizontal", 3))
sketch7.addConstraint(Sketcher.Constraint("Vertical", 4))
sketch7.addConstraint(Sketcher.Constraint("Coincident", 4, 1, 0, 2))
sketch7.addConstraint(Sketcher.Constraint("Horizontal", 2, 2, 4, 2))
sketch7.addConstraint(Sketcher.Constraint("DistanceX", 1, 2, 1, 1, Q("0.5 mm")))
sketch7.addConstraint(Sketcher.Constraint("DistanceX", -1, 1, 1, 2, Q("4 mm")))
sketch7.addConstraint(Sketcher.Constraint("DistanceY", 2, 2, -1, 1, Q("42.5 mm")))
sketch7.addConstraint(Sketcher.Constraint("DistanceY", 0, 1, 0, 2, Q("1.222432 mm")))
sketch7.setExpression("Constraints[11]", "Params.sketch7_width")
groove = doc.addObject("PartDesign::Groove", "Groove")
body.addObject(groove)
groove.Profile = sketch7
groove.ReferenceAxis = (sketch7, ["Axis0"])
groove.setExpression("Angle", "Params.groove_angle")
doc.recompute()

linearpattern = doc.addObject("PartDesign::LinearPattern", "LinearPattern")
body.addObject(linearpattern)
linearpattern.Originals = [groove]
linearpattern.Direction = (doc.X_Axis, [""])
linearpattern.Mode = "offset"
linearpattern.setExpression("Offset", "Params.linearpattern_pitch")
linearpattern.Occurrences = 2
body.Tip = linearpattern

sketch8 = doc.addObject("Sketcher::SketchObject", "Sketch007")
body.addObject(sketch8)
sketch8.AttachmentSupport = (doc.YZ_Plane, [""])
sketch8.MapMode = "FlatFace"
sketch8.AttachmentOffset = App.Placement(Vector(0, 0, 33.546316), App.Rotation())
sketch8.addGeometry(Part.Circle(Vector(4.5, -19.2, 0), Vector(0, 0, 1), 0.5), False)
sketch8.addGeometry(Part.Circle(Vector(4.5, -16.2, 0), Vector(0, 0, 1), 0.5), False)
sketch8.addConstraint(Sketcher.Constraint("Equal", 0, 1))
sketch8.addConstraint(Sketcher.Constraint("Vertical", 0, 3, 1, 3))
sketch8.addConstraint(Sketcher.Constraint("Diameter", 0, Q("1 mm")))
sketch8.addConstraint(Sketcher.Constraint("DistanceY", 0, 3, 1, 3, Q("3 mm")))
sketch8.addConstraint(Sketcher.Constraint("DistanceX", -1, 1, 0, 3, Q("4.5 mm")))
sketch8.addConstraint(Sketcher.Constraint("DistanceY", 0, 3, -1, 1, Q("19.169711 mm")))
sketch8.setExpression("Constraints[2]", "Params.sketch8_diameter")
doc.recompute()
hole2 = doc.addObject("PartDesign::Hole", "Hole001")
body.addObject(hole2)
hole2.Profile = sketch8
hole2.ThreadType = "None"
hole2.setExpression("Diameter", "Params.hole2_diameter")
hole2.DepthType = "Dimension"
hole2.setExpression("Depth", "Params.hole2_depth")
hole2.DrillPoint = "Flat"
hole2.Reversed = True

sketch9 = doc.addObject("Sketcher::SketchObject", "Sketch008")
body.addObject(sketch9)
sketch9.AttachmentSupport = (doc.XZ_Plane, [""])
sketch9.MapMode = "FlatFace"
sketch9.AttachmentOffset = App.Placement(Vector(0, 0, -0.75), App.Rotation())
sketch9.addGeometry(Part.LineSegment(Vector(-38, 6, 0), Vector(-38, -6, 0)), False)
sketch9.addGeometry(Part.LineSegment(Vector(-38, -6, 0), Vector(-13, -6, 0)), False)
sketch9.addGeometry(Part.LineSegment(Vector(-13, -6, 0), Vector(-13, 6, 0)), False)
sketch9.addGeometry(Part.LineSegment(Vector(-13, 6, 0), Vector(-38, 6, 0)), False)
sketch9.addGeometry(Part.LineSegment(Vector(13, 6, 0), Vector(13, -6, 0)), False)
sketch9.addGeometry(Part.LineSegment(Vector(13, -6, 0), Vector(38, -6, 0)), False)
sketch9.addGeometry(Part.LineSegment(Vector(38, -6, 0), Vector(38, 6, 0)), False)
sketch9.addGeometry(Part.LineSegment(Vector(38, 6, 0), Vector(13, 6, 0)), False)
sketch9.addConstraint(Sketcher.Constraint("Coincident", 0, 2, 1, 1))
sketch9.addConstraint(Sketcher.Constraint("Coincident", 1, 2, 2, 1))
sketch9.addConstraint(Sketcher.Constraint("Coincident", 2, 2, 3, 1))
sketch9.addConstraint(Sketcher.Constraint("Coincident", 3, 2, 0, 1))
sketch9.addConstraint(Sketcher.Constraint("Coincident", 4, 2, 5, 1))
sketch9.addConstraint(Sketcher.Constraint("Coincident", 5, 2, 6, 1))
sketch9.addConstraint(Sketcher.Constraint("Coincident", 6, 2, 7, 1))
sketch9.addConstraint(Sketcher.Constraint("Coincident", 7, 2, 4, 1))
sketch9.addConstraint(Sketcher.Constraint("Vertical", 0))
sketch9.addConstraint(Sketcher.Constraint("Horizontal", 1))
sketch9.addConstraint(Sketcher.Constraint("Vertical", 2))
sketch9.addConstraint(Sketcher.Constraint("Horizontal", 3))
sketch9.addConstraint(Sketcher.Constraint("Vertical", 4))
sketch9.addConstraint(Sketcher.Constraint("Horizontal", 5))
sketch9.addConstraint(Sketcher.Constraint("Vertical", 6))
sketch9.addConstraint(Sketcher.Constraint("Horizontal", 7))
sketch9.addConstraint(Sketcher.Constraint("Symmetric", 2, 2, 4, 2, -1, 1))
sketch9.addConstraint(Sketcher.Constraint("Symmetric", 0, 2, 6, 2, -1, 1))
sketch9.addConstraint(Sketcher.Constraint("Horizontal", 1, 2, 4, 2))
sketch9.addConstraint(Sketcher.Constraint("DistanceX", 1, 1, 1, 2, Q("25 mm")))
sketch9.addConstraint(Sketcher.Constraint("DistanceY", 0, 2, 0, 1, Q("13 mm")))
sketch9.addConstraint(Sketcher.Constraint("DistanceX", 0, 2, -1, 1, Q("38 mm")))
sketch9.setExpression("Constraints[19]", "Params.sketch9_width")
sketch9.setExpression("Constraints[20]", "Params.sketch9_height")
pocket2 = doc.addObject("PartDesign::Pocket", "Pocket001")
body.addObject(pocket2)
pocket2.Profile = sketch9
pocket2.setExpression("Length", "Params.pocket2_length")

sketch10 = doc.addObject("Sketcher::SketchObject", "Sketch009")
body.addObject(sketch10)
sketch10.AttachmentSupport = (doc.XZ_Plane, [""])
sketch10.MapMode = "FlatFace"
sketch10.AttachmentOffset = App.Placement(Vector(0, 0, -0.75), App.Rotation())
sketch10.addGeometry(Part.LineSegment(Vector(-38, -6, 0), Vector(-38, 6, 0)), False)
sketch10.addGeometry(Part.LineSegment(Vector(-38, 6, 0), Vector(-13, 6, 0)), False)
sketch10.addGeometry(Part.LineSegment(Vector(-13, 6, 0), Vector(-13, -6, 0)), False)
sketch10.addGeometry(Part.LineSegment(Vector(-13, -6, 0), Vector(-38, -6, 0)), False)
sketch10.addGeometry(Part.LineSegment(Vector(13, -6, 0), Vector(13, 6, 0)), False)
sketch10.addGeometry(Part.LineSegment(Vector(13, 6, 0), Vector(38, 6, 0)), False)
sketch10.addGeometry(Part.LineSegment(Vector(38, 6, 0), Vector(38, -6, 0)), False)
sketch10.addGeometry(Part.LineSegment(Vector(38, -6, 0), Vector(13, -6, 0)), False)
sketch10.addConstraint(Sketcher.Constraint("Coincident", 0, 2, 1, 1))
sketch10.addConstraint(Sketcher.Constraint("Coincident", 1, 2, 2, 1))
sketch10.addConstraint(Sketcher.Constraint("Coincident", 2, 2, 3, 1))
sketch10.addConstraint(Sketcher.Constraint("Coincident", 3, 2, 0, 1))
sketch10.addConstraint(Sketcher.Constraint("Coincident", 4, 2, 5, 1))
sketch10.addConstraint(Sketcher.Constraint("Coincident", 5, 2, 6, 1))
sketch10.addConstraint(Sketcher.Constraint("Coincident", 6, 2, 7, 1))
sketch10.addConstraint(Sketcher.Constraint("Coincident", 7, 2, 4, 1))
sketch10.addConstraint(Sketcher.Constraint("Vertical", 0))
sketch10.addConstraint(Sketcher.Constraint("Horizontal", 1))
sketch10.addConstraint(Sketcher.Constraint("Vertical", 2))
sketch10.addConstraint(Sketcher.Constraint("Horizontal", 3))
sketch10.addConstraint(Sketcher.Constraint("Vertical", 4))
sketch10.addConstraint(Sketcher.Constraint("Horizontal", 5))
sketch10.addConstraint(Sketcher.Constraint("Vertical", 6))
sketch10.addConstraint(Sketcher.Constraint("Horizontal", 7))
sketch10.addConstraint(Sketcher.Constraint("Symmetric", 2, 2, 4, 2, -1, 1))
sketch10.addConstraint(Sketcher.Constraint("Symmetric", 0, 2, 6, 2, -1, 1))
sketch10.addConstraint(Sketcher.Constraint("Horizontal", 1, 2, 4, 2))
sketch10.addConstraint(Sketcher.Constraint("DistanceX", 1, 1, 1, 2, Q("25 mm")))
sketch10.addConstraint(Sketcher.Constraint("DistanceY", 0, 1, 0, 2, Q("13 mm")))
sketch10.addConstraint(Sketcher.Constraint("DistanceX", 0, 2, -1, 1, Q("38 mm")))
sketch10.setExpression("Constraints[19]", "Params.sketch10_width")
sketch10.setExpression("Constraints[20]", "Params.sketch10_height")
pocket3 = doc.addObject("PartDesign::Pocket", "Pocket002")
body.addObject(pocket3)
pocket3.Profile = sketch10
pocket3.Type = "ThroughAll"
pocket3.Reversed = True

sketch11 = doc.addObject("Sketcher::SketchObject", "Sketch010")
body.addObject(sketch11)
sketch11.AttachmentSupport = (doc.XZ_Plane, [""])
sketch11.MapMode = "FlatFace"
sketch11.AttachmentOffset = App.Placement(Vector(0, 0, -3), App.Rotation())
sketch11.addGeometry(Part.LineSegment(Vector(34.9, -23.4, 0), Vector(34.9, -6.5, 0)), False)
sketch11.addGeometry(Part.LineSegment(Vector(34.9, -6.5, 0), Vector(35.5, -6.5, 0)), False)
sketch11.addGeometry(Part.LineSegment(Vector(35.5, -6.5, 0), Vector(35.5, -23.4, 0)), False)
sketch11.addGeometry(Part.LineSegment(Vector(35.5, -23.4, 0), Vector(34.9, -23.4, 0)), False)
sketch11.addConstraint(Sketcher.Constraint("Coincident", 0, 2, 1, 1))
sketch11.addConstraint(Sketcher.Constraint("Coincident", 1, 2, 2, 1))
sketch11.addConstraint(Sketcher.Constraint("Coincident", 2, 2, 3, 1))
sketch11.addConstraint(Sketcher.Constraint("Coincident", 3, 2, 0, 1))
sketch11.addConstraint(Sketcher.Constraint("Vertical", 0))
sketch11.addConstraint(Sketcher.Constraint("Horizontal", 1))
sketch11.addConstraint(Sketcher.Constraint("Vertical", 2))
sketch11.addConstraint(Sketcher.Constraint("Horizontal", 3))
sketch11.addConstraint(Sketcher.Constraint("DistanceX", 1, 1, 1, 2, Q("0.67 mm")))
sketch11.addConstraint(Sketcher.Constraint("DistanceY", 0, 2, -1, 1, Q("6.5 mm")))
sketch11.addConstraint(Sketcher.Constraint("DistanceY", 0, 1, 0, 2, Q("16.929711 mm")))
sketch11.addConstraint(Sketcher.Constraint("DistanceX", -1, 1, 0, 2, Q("34.876316 mm")))
sketch11.setExpression("Constraints[8]", "Params.sketch11_width")
pad5 = doc.addObject("PartDesign::Pad", "Pad004")
body.addObject(pad5)
pad5.Profile = sketch11
pad5.setExpression("Length", "Params.pad5_length")
pad5.Reversed = True

sketch12 = doc.addObject("Sketcher::SketchObject", "Sketch011")
body.addObject(sketch12)
sketch12.AttachmentSupport = (doc.YZ_Plane, [""])
sketch12.MapMode = "FlatFace"
sketch12.AttachmentOffset = App.Placement(Vector(0, 0, 34.876316), App.Rotation())
sketch12.addGeometry(Part.Circle(Vector(4.5, -19.2, 0), Vector(0, 0, 1), 0.5), False)
sketch12.addGeometry(Part.Circle(Vector(4.5, -16.2, 0), Vector(0, 0, 1), 0.5), False)
sketch12.addConstraint(Sketcher.Constraint("Equal", 0, 1))
sketch12.addConstraint(Sketcher.Constraint("Vertical", 0, 3, 1, 3))
sketch12.addConstraint(Sketcher.Constraint("Diameter", 0, Q("1 mm")))
sketch12.addConstraint(Sketcher.Constraint("DistanceY", 0, 3, 1, 3, Q("3 mm")))
sketch12.addConstraint(Sketcher.Constraint("DistanceX", -1, 1, 0, 3, Q("4.5 mm")))
sketch12.addConstraint(Sketcher.Constraint("DistanceY", 0, 3, -1, 1, Q("19.169711 mm")))
sketch12.setExpression("Constraints[2]", "Params.sketch12_diameter")
doc.recompute()
hole3 = doc.addObject("PartDesign::Hole", "Hole002")
body.addObject(hole3)
hole3.Profile = sketch12
hole3.ThreadType = "None"
hole3.setExpression("Diameter", "Params.hole3_diameter")
hole3.DepthType = "Dimension"
hole3.setExpression("Depth", "Params.hole3_depth")
hole3.DrillPoint = "Flat"
hole3.Reversed = True

doc.recompute()
